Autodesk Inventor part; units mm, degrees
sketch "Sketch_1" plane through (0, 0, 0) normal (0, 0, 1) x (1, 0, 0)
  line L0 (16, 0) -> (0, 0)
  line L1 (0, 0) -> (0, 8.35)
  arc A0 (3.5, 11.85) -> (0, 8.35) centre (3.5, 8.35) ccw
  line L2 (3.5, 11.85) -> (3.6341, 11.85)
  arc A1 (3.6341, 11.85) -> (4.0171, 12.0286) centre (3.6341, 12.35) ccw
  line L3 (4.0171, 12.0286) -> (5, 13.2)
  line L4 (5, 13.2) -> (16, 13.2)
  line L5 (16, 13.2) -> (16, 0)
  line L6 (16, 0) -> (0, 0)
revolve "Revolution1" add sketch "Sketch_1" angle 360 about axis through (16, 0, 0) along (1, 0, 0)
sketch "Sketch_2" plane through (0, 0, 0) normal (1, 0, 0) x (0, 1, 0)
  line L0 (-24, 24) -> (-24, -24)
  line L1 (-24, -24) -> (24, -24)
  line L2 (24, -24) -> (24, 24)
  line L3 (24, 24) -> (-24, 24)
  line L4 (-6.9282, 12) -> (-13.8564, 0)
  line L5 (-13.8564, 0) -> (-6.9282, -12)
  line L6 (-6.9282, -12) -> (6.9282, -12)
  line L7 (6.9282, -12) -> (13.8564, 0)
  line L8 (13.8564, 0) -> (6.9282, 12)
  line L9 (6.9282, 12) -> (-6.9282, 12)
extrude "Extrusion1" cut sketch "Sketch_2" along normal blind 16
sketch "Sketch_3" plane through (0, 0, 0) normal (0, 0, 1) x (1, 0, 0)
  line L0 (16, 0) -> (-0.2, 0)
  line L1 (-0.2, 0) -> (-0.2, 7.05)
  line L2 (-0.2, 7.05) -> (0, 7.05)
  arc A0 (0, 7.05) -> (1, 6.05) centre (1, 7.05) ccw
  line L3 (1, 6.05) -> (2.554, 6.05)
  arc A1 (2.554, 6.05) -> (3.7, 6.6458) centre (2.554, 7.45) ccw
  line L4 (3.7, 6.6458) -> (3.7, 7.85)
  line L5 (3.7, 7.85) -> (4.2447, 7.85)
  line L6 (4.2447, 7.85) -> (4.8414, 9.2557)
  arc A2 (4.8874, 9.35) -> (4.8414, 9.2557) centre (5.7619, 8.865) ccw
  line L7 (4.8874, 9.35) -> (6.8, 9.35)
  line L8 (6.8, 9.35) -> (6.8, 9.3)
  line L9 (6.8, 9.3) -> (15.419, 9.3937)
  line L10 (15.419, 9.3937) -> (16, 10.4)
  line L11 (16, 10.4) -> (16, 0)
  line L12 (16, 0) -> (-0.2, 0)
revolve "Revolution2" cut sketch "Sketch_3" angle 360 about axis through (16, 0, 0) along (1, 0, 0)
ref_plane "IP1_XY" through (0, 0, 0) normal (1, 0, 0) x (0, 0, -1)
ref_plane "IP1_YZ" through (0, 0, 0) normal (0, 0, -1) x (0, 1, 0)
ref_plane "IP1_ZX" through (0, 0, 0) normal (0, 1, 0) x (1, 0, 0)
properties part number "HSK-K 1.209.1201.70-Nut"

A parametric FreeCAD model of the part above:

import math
import FreeCAD as App
import Part
import Sketcher
Q = App.Units.Quantity

doc = App.newDocument("Part")
body = doc.addObject("PartDesign::Body", "Body")

# Sketch on XY plane
sketch1 = doc.addObject("Sketcher::SketchObject", "Sketch")
body.addObject(sketch1)
sketch1.AttachmentSupport = (doc.XY_Plane, [""])
sketch1.MapMode = "FlatFace"
sketch1.addGeometry(Part.LineSegment(App.Vector(0, 0, 0), App.Vector(16, 0, 0)), False)
sketch1.addGeometry(Part.LineSegment(App.Vector(16, 0, 0), App.Vector(16, 13.2, 0)), False)
sketch1.addGeometry(Part.LineSegment(App.Vector(16, 13.2, 0), App.Vector(5, 13.2, 0)), False)
sketch1.addGeometry(Part.LineSegment(App.Vector(5, 13.2, 0), App.Vector(4.02, 12.03, 0)), False)
sketch1.addGeometry(Part.ArcOfCircle(Part.Circle(App.Vector(3.63, 12.35, 0), App.Vector(0, 0, 1), 0.5), math.radians(-90), math.radians(-40)), False)
sketch1.addGeometry(Part.LineSegment(App.Vector(3.63, 11.85, 0), App.Vector(3.5, 11.85, 0)), False)
sketch1.addGeometry(Part.ArcOfCircle(Part.Circle(App.Vector(3.5, 8.35, 0), App.Vector(0, 0, 1), 3.5), math.radians(90), math.radians(180)), False)
sketch1.addGeometry(Part.LineSegment(App.Vector(0, 8.35, 0), App.Vector(0, 0, 0)), False)
sketch1.addConstraint(Sketcher.Constraint("Coincident", 0, 2, 1, 1))
sketch1.addConstraint(Sketcher.Constraint("Coincident", 1, 2, 2, 1))
sketch1.addConstraint(Sketcher.Constraint("Coincident", 2, 2, 3, 1))
sketch1.addConstraint(Sketcher.Constraint("Tangent", 3, 2, 4, 2))
sketch1.addConstraint(Sketcher.Constraint("Tangent", 4, 1, 5, 1))
sketch1.addConstraint(Sketcher.Constraint("Tangent", 5, 2, 6, 1))
sketch1.addConstraint(Sketcher.Constraint("Tangent", 6, 2, 7, 1))
sketch1.addConstraint(Sketcher.Constraint("Coincident", 7, 2, 0, 1))
sketch1.addConstraint(Sketcher.Constraint("Horizontal", 0))
sketch1.addConstraint(Sketcher.Constraint("Vertical", 1))
sketch1.addConstraint(Sketcher.Constraint("Horizontal", 2))
sketch1.addConstraint(Sketcher.Constraint("Horizontal", 5))
sketch1.addConstraint(Sketcher.Constraint("Vertical", 7))
sketch1.addConstraint(Sketcher.Constraint("Coincident", 7, 2, -1, 1))
sketch1.addConstraint(Sketcher.Constraint("Radius", 4, 0.5))
sketch1.addConstraint(Sketcher.Constraint("Radius", 6, 3.5))
sketch1.addConstraint(Sketcher.Constraint("DistanceX", 0, 1, 0, 2, 16.0))
sketch1.addConstraint(Sketcher.Constraint("DistanceX", 2, 2, 2, 1, 11.0))
sketch1.addConstraint(Sketcher.Constraint("Angle", 3, Q("-129.9994 deg")))
sketch1.addConstraint(Sketcher.Constraint("DistanceY", 1, 1, 1, 2, 13.2))
sketch1.addConstraint(Sketcher.Constraint("DistanceY", 7, 2, 7, 1, 8.35))
revolution = doc.addObject("PartDesign::Revolution", "Revolution")
body.addObject(revolution)
revolution.Profile = sketch1
revolution.ReferenceAxis = (sketch1, ["H_Axis"])
revolution.Angle = 360

# Sketch on YZ plane
sketch2 = doc.addObject("Sketcher::SketchObject", "Sketch001")
body.addObject(sketch2)
sketch2.AttachmentSupport = (doc.YZ_Plane, [""])
sketch2.MapMode = "FlatFace"
sketch2.addGeometry(Part.LineSegment(App.Vector(24, 24, 0), App.Vector(-24, 24, 0)), False)
sketch2.addGeometry(Part.LineSegment(App.Vector(-24, 24, 0), App.Vector(-24, -24, 0)), False)
sketch2.addGeometry(Part.LineSegment(App.Vector(-24, -24, 0), App.Vector(24, -24, 0)), False)
sketch2.addGeometry(Part.LineSegment(App.Vector(24, -24, 0), App.Vector(24, 24, 0)), False)
sketch2.addGeometry(Part.LineSegment(App.Vector(-14, 0, 0), App.Vector(-7, 12, 0)), False)
sketch2.addGeometry(Part.LineSegment(App.Vector(-7, 12, 0), App.Vector(7, 12, 0)), False)
sketch2.addGeometry(Part.LineSegment(App.Vector(7, 12, 0), App.Vector(14, 0, 0)), False)
sketch2.addGeometry(Part.LineSegment(App.Vector(14, 0, 0), App.Vector(7, -12, 0)), False)
sketch2.addGeometry(Part.LineSegment(App.Vector(7, -12, 0), App.Vector(-7, -12, 0)), False)
sketch2.addGeometry(Part.LineSegment(App.Vector(-7, -12, 0), App.Vector(-14, 0, 0)), False)
sketch2.addConstraint(Sketcher.Constraint("Coincident", 0, 2, 1, 1))
sketch2.addConstraint(Sketcher.Constraint("Coincident", 1, 2, 2, 1))
sketch2.addConstraint(Sketcher.Constraint("Coincident", 2, 2, 3, 1))
sketch2.addConstraint(Sketcher.Constraint("Coincident", 3, 2, 0, 1))
sketch2.addConstraint(Sketcher.Constraint("Coincident", 4, 2, 5, 1))
sketch2.addConstraint(Sketcher.Constraint("Coincident", 5, 2, 6, 1))
sketch2.addConstraint(Sketcher.Constraint("Coincident", 6, 2, 7, 1))
sketch2.addConstraint(Sketcher.Constraint("Coincident", 7, 2, 8, 1))
sketch2.addConstraint(Sketcher.Constraint("Coincident", 8, 2, 9, 1))
sketch2.addConstraint(Sketcher.Constraint("Coincident", 9, 2, 4, 1))
sketch2.addConstraint(Sketcher.Constraint("Horizontal", 0))
sketch2.addConstraint(Sketcher.Constraint("Vertical", 1))
sketch2.addConstraint(Sketcher.Constraint("Horizontal", 2))
sketch2.addConstraint(Sketcher.Constraint("Vertical", 3))
sketch2.addConstraint(Sketcher.Constraint("Horizontal", 5))
sketch2.addConstraint(Sketcher.Constraint("Horizontal", 8))
sketch2.addConstraint(Sketcher.Constraint("Symmetric", 0, 2, 2, 2, -1, 1))
sketch2.addConstraint(Sketcher.Constraint("Symmetric", 4, 2, 7, 2, -1, 1))
sketch2.addConstraint(Sketcher.Constraint("Symmetric", 6, 2, 9, 2, -1, 1))
sketch2.addConstraint(Sketcher.Constraint("PointOnObject", 6, 2, -1))
sketch2.addConstraint(Sketcher.Constraint("Parallel", 6, 9))
sketch2.addConstraint(Sketcher.Constraint("Vertical", 5, 2, 7, 2))
sketch2.addConstraint(Sketcher.Constraint("Equal", 2, 1))
sketch2.addConstraint(Sketcher.Constraint("DistanceX", 0, 2, 0, 1, 48.0))
sketch2.addConstraint(Sketcher.Constraint("Angle", 4, Q("60 deg")))
sketch2.addConstraint(Sketcher.Constraint("DistanceY", -1, 1, 4, 2, 12.0))
sketch2.addConstraint(Sketcher.Constraint("DistanceX", 5, 1, 5, 2, 13.8564))
pocket1 = doc.addObject("PartDesign::Pocket", "Pocket")
body.addObject(pocket1)
pocket1.Profile = sketch2
pocket1.Length = 16
pocket1.Reversed = True

# Sketch on XY plane
sketch3 = doc.addObject("Sketcher::SketchObject", "Sketch002")
body.addObject(sketch3)
sketch3.AttachmentSupport = (doc.XY_Plane, [""])
sketch3.MapMode = "FlatFace"
sketch3.addGeometry(Part.LineSegment(App.Vector(-0.2, 0, 0), App.Vector(16, 0, 0)), False)
sketch3.addGeometry(Part.LineSegment(App.Vector(16, 0, 0), App.Vector(16, 10.4, 0)), False)
sketch3.addGeometry(Part.LineSegment(App.Vector(16, 10.4, 0), App.Vector(15.419, 9.394, 0)), False)
sketch3.addGeometry(Part.LineSegment(App.Vector(15.419, 9.394, 0), App.Vector(6.8, 9.3, 0)), False)
sketch3.addGeometry(Part.LineSegment(App.Vector(6.8, 9.3, 0), App.Vector(6.8, 9.35, 0)), False)
sketch3.addGeometry(Part.LineSegment(App.Vector(6.8, 9.35, 0), App.Vector(4.887, 9.35, 0)), False)
sketch3.addGeometry(Part.ArcOfCircle(Part.Circle(App.Vector(5.761, 8.866, 0), App.Vector(0, 0, 1), 0.998), math.radians(150.98), math.radians(157.01)), False)
sketch3.addGeometry(Part.LineSegment(App.Vector(4.841, 9.256, 0), App.Vector(4.245, 7.85, 0)), False)
sketch3.addGeometry(Part.LineSegment(App.Vector(4.245, 7.85, 0), App.Vector(3.7, 7.85, 0)), False)
sketch3.addGeometry(Part.LineSegment(App.Vector(3.7, 7.85, 0), App.Vector(3.7, 6.646, 0)), False)
sketch3.addGeometry(Part.ArcOfCircle(Part.Circle(App.Vector(2.554, 7.45, 0), App.Vector(0, 0, 1), 1.4), math.radians(-90), math.radians(-35)), False)
sketch3.addGeometry(Part.LineSegment(App.Vector(2.554, 6.05, 0), App.Vector(1, 6.05, 0)), False)
sketch3.addGeometry(Part.ArcOfCircle(Part.Circle(App.Vector(1, 7.05, 0), App.Vector(0, 0, 1), 1), math.radians(180), math.radians(270)), False)
sketch3.addGeometry(Part.LineSegment(App.Vector(0, 7.05, 0), App.Vector(-0.2, 7.05, 0)), False)
sketch3.addGeometry(Part.LineSegment(App.Vector(-0.2, 7.05, 0), App.Vector(-0.2, 0, 0)), False)
sketch3.addConstraint(Sketcher.Constraint("Coincident", 0, 2, 1, 1))
sketch3.addConstraint(Sketcher.Constraint("Coincident", 1, 2, 2, 1))
sketch3.addConstraint(Sketcher.Constraint("Coincident", 2, 2, 3, 1))
sketch3.addConstraint(Sketcher.Constraint("Coincident", 3, 2, 4, 1))
sketch3.addConstraint(Sketcher.Constraint("Coincident", 4, 2, 5, 1))
sketch3.addConstraint(Sketcher.Constraint("Coincident", 5, 2, 6, 1))
sketch3.addConstraint(Sketcher.Constraint("Tangent", 6, 2, 7, 1))
sketch3.addConstraint(Sketcher.Constraint("Coincident", 7, 2, 8, 1))
sketch3.addConstraint(Sketcher.Constraint("Coincident", 8, 2, 9, 1))
sketch3.addConstraint(Sketcher.Constraint("Coincident", 9, 2, 10, 2))
sketch3.addConstraint(Sketcher.Constraint("Tangent", 10, 1, 11, 1))
sketch3.addConstraint(Sketcher.Constraint("Tangent", 11, 2, 12, 2))
sketch3.addConstraint(Sketcher.Constraint("Coincident", 12, 1, 13, 1))
sketch3.addConstraint(Sketcher.Constraint("Coincident", 13, 2, 14, 1))
sketch3.addConstraint(Sketcher.Constraint("Coincident", 14, 2, 0, 1))
sketch3.addConstraint(Sketcher.Constraint("Horizontal", 0))
sketch3.addConstraint(Sketcher.Constraint("Vertical", 1))
sketch3.addConstraint(Sketcher.Constraint("Vertical", 4))
sketch3.addConstraint(Sketcher.Constraint("Horizontal", 5))
sketch3.addConstraint(Sketcher.Constraint("Horizontal", 8))
sketch3.addConstraint(Sketcher.Constraint("Vertical", 9))
sketch3.addConstraint(Sketcher.Constraint("Horizontal", 11))
sketch3.addConstraint(Sketcher.Constraint("Horizontal", 13))
sketch3.addConstraint(Sketcher.Constraint("Vertical", 14))
sketch3.addConstraint(Sketcher.Constraint("PointOnObject", 0, 2, -1))
sketch3.addConstraint(Sketcher.Constraint("PointOnObject", 12, 1, -2))
sketch3.addConstraint(Sketcher.Constraint("Radius", 12, 1.0))
sketch3.addConstraint(Sketcher.Constraint("Radius", 10, 1.4))
sketch3.addConstraint(Sketcher.Constraint("Angle", 2, Q("-120.0005 deg")))
sketch3.addConstraint(Sketcher.Constraint("Angle", 7, Q("-113.0005 deg")))
sketch3.addConstraint(Sketcher.Constraint("DistanceX", 0, 1, 0, 2, 16.2))
sketch3.addConstraint(Sketcher.Constraint("DistanceX", 13, 2, 13, 1, 0.2))
sketch3.addConstraint(Sketcher.Constraint("DistanceY", 1, 1, 1, 2, 10.4))
sketch3.addConstraint(Sketcher.Constraint("DistanceY", 11, 2, 12, 1, 1.0))
sketch3.addConstraint(Sketcher.Constraint("DistanceY", 4, 1, 4, 2, 0.05))
sketch3.addConstraint(Sketcher.Constraint("DistanceY", 14, 2, 14, 1, 7.05))
sketch3.addConstraint(Sketcher.Constraint("DistanceX", -1, 1, 3, 2, 6.8))
sketch3.addConstraint(Sketcher.Constraint("DistanceY", -1, 1, 3, 2, 9.3))
sketch3.addConstraint(Sketcher.Constraint("DistanceX", -1, 1, 8, 2, 3.7))
sketch3.addConstraint(Sketcher.Constraint("Radius", 6, 0.9984))
sketch3.addConstraint(Sketcher.Constraint("DistanceY", 7, 2, 5, 2, 1.5))
sketch3.addConstraint(Sketcher.Constraint("DistanceX", 11, 2, 11, 1, 1.554))
sketch3.addConstraint(Sketcher.Constraint("DistanceY", 9, 2, 6, 2, 2.61))
sketch3.addConstraint(Sketcher.Constraint("Distance", 2, 1.162))
sketch3.addConstraint(Sketcher.Constraint("DistanceX", 5, 2, 5, 1, 1.9126))
groove = doc.addObject("PartDesign::Groove", "Groove")
body.addObject(groove)
groove.Profile = sketch3
groove.ReferenceAxis = (sketch3, ["H_Axis"])
groove.Angle = 360

doc.recompute()
